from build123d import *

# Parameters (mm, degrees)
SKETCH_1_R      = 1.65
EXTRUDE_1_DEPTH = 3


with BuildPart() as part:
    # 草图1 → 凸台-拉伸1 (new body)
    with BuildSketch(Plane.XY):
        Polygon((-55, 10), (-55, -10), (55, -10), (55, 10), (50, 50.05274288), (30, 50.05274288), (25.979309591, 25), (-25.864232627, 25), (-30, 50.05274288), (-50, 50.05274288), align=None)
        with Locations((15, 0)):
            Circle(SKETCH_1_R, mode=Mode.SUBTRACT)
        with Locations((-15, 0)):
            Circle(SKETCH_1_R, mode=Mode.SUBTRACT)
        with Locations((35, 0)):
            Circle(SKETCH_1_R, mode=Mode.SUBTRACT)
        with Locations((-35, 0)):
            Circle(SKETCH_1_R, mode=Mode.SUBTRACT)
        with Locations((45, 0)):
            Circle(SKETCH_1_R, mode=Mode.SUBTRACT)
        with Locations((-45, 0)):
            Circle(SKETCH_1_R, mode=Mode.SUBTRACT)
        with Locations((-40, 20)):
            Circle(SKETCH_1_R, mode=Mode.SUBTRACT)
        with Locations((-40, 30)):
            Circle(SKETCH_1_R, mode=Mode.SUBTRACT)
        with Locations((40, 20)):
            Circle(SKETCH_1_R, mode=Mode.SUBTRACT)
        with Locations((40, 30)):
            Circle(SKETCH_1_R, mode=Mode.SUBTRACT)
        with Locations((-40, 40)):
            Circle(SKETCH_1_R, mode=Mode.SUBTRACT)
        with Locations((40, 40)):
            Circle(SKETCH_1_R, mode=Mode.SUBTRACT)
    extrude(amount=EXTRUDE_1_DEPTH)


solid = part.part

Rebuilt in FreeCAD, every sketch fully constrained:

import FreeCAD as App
import Part
import Sketcher

V = App.Vector


def add_polygon(sketch, points):
    """Adds a closed chain of lines whose ends are joined by coincident constraints."""
    first, n = sketch.GeometryCount, len(points)
    for a, b in zip(points, points[1:] + points[:1]):
        sketch.addGeometry(Part.LineSegment(App.Vector(*a, 0), App.Vector(*b, 0)), False)
    for i in range(n):
        sketch.addConstraint(Sketcher.Constraint("Coincident", first + i, 2, first + (i + 1) % n, 1))

doc = App.newDocument("Part")
body = doc.addObject("PartDesign::Body", "Body")

# Sketch on XY plane
sketch1 = body.newObject("Sketcher::SketchObject", "Sketch")
sketch1.AttachmentSupport = (doc.getObject("XY_Plane"), [""])
sketch1.MapMode = "FlatFace"
add_polygon(sketch1, [(-55, 10), (-55, -10), (55, -10), (55, 10), (50, 50.052743), (30, 50.052743), (25.97931, 25), (-25.864233, 25), (-30, 50.052743), (-50, 50.052743)])  # lines 0-9
sketch1.addGeometry(Part.Circle(V(-45, 0, 0), V(0, 0, 1), 1.65), False)  # 10
sketch1.addGeometry(Part.Circle(V(-35, 0, 0), V(0, 0, 1), 1.65), False)  # 11
sketch1.addGeometry(Part.Circle(V(-15, 0, 0), V(0, 0, 1), 1.65), False)  # 12
sketch1.addGeometry(Part.Circle(V(15, 0, 0), V(0, 0, 1), 1.65), False)  # 13
sketch1.addGeometry(Part.Circle(V(35, 0, 0), V(0, 0, 1), 1.65), False)  # 14
sketch1.addGeometry(Part.Circle(V(45, 0, 0), V(0, 0, 1), 1.65), False)  # 15
sketch1.addGeometry(Part.Circle(V(-40, 20, 0), V(0, 0, 1), 1.65), False)  # 16
sketch1.addGeometry(Part.Circle(V(-40, 30, 0), V(0, 0, 1), 1.65), False)  # 17
sketch1.addGeometry(Part.Circle(V(-40, 40, 0), V(0, 0, 1), 1.65), False)  # 18
sketch1.addGeometry(Part.Circle(V(40, 20, 0), V(0, 0, 1), 1.65), False)  # 19
sketch1.addGeometry(Part.Circle(V(40, 30, 0), V(0, 0, 1), 1.65), False)  # 20
sketch1.addGeometry(Part.Circle(V(40, 40, 0), V(0, 0, 1), 1.65), False)  # 21
sketch1.addConstraint(Sketcher.Constraint("Vertical", 0))
sketch1.addConstraint(Sketcher.Constraint("Horizontal", 1))
sketch1.addConstraint(Sketcher.Constraint("Vertical", 2))
sketch1.addConstraint(Sketcher.Constraint("Horizontal", 4))
sketch1.addConstraint(Sketcher.Constraint("Horizontal", 6))
sketch1.addConstraint(Sketcher.Constraint("Horizontal", 8))
sketch1.addConstraint(Sketcher.Constraint("Equal", 10, 11))
sketch1.addConstraint(Sketcher.Constraint("Equal", 11, 12))
sketch1.addConstraint(Sketcher.Constraint("Equal", 12, 13))
sketch1.addConstraint(Sketcher.Constraint("Equal", 13, 14))
sketch1.addConstraint(Sketcher.Constraint("Equal", 14, 15))
sketch1.addConstraint(Sketcher.Constraint("Equal", 15, 16))
sketch1.addConstraint(Sketcher.Constraint("Equal", 16, 17))
sketch1.addConstraint(Sketcher.Constraint("Equal", 17, 18))
sketch1.addConstraint(Sketcher.Constraint("Equal", 18, 19))
sketch1.addConstraint(Sketcher.Constraint("Equal", 19, 20))
sketch1.addConstraint(Sketcher.Constraint("Equal", 20, 21))
sketch1.addConstraint(Sketcher.Constraint("Symmetric", 12, 3, 13, 3, -1, 1))
sketch1.addConstraint(Sketcher.Constraint("Symmetric", 11, 3, 14, 3, -1, 1))
sketch1.addConstraint(Sketcher.Constraint("Symmetric", 10, 3, 15, 3, -1, 1))
sketch1.addConstraint(Sketcher.Constraint("Symmetric", 0, 2, 2, 2, -1, 1))
sketch1.addConstraint(Sketcher.Constraint("Symmetric", 16, 3, 19, 3, -2))
sketch1.addConstraint(Sketcher.Constraint("Symmetric", 17, 3, 20, 3, -2))
sketch1.addConstraint(Sketcher.Constraint("Symmetric", 18, 3, 21, 3, -2))
sketch1.addConstraint(Sketcher.Constraint("Symmetric", 4, 2, 7, 2, -2))
sketch1.addConstraint(Sketcher.Constraint("PointOnObject", 10, 3, -1))
sketch1.addConstraint(Sketcher.Constraint("PointOnObject", 11, 3, -1))
sketch1.addConstraint(Sketcher.Constraint("PointOnObject", 12, 3, -1))
sketch1.addConstraint(Sketcher.Constraint("Horizontal", 2, 2, 9, 2))
sketch1.addConstraint(Sketcher.Constraint("Vertical", 16, 3, 17, 3))
sketch1.addConstraint(Sketcher.Constraint("Vertical", 17, 3, 18, 3))
sketch1.addConstraint(Sketcher.Constraint("Equal", 4, 8))
sketch1.addConstraint(Sketcher.Constraint("Equal", 8, 0))
sketch1.addConstraint(Sketcher.Constraint("Diameter", 10, 3.3))
sketch1.addConstraint(Sketcher.Constraint("DistanceX", 1, 1, 1, 2, 110.0))
sketch1.addConstraint(Sketcher.Constraint("DistanceX", 4, 2, 4, 1, 20.0))
sketch1.addConstraint(Sketcher.Constraint("DistanceX", 10, 3, -1, 1, 45.0))
sketch1.addConstraint(Sketcher.Constraint("DistanceX", 11, 3, -1, 1, 35.0))
sketch1.addConstraint(Sketcher.Constraint("DistanceX", 12, 3, -1, 1, 15.0))
sketch1.addConstraint(Sketcher.Constraint("DistanceX", 16, 3, -1, 1, 40.0))
sketch1.addConstraint(Sketcher.Constraint("DistanceY", -1, 1, 16, 3, 20.0))
sketch1.addConstraint(Sketcher.Constraint("DistanceY", -1, 1, 17, 3, 30.0))
sketch1.addConstraint(Sketcher.Constraint("DistanceY", -1, 1, 18, 3, 40.0))
sketch1.addConstraint(Sketcher.Constraint("DistanceX", -1, 1, 3, 2, 50.0))
sketch1.addConstraint(Sketcher.Constraint("DistanceY", -1, 1, 5, 2, 25.0))
sketch1.addConstraint(Sketcher.Constraint("Distance", 5, 25.37333))
sketch1.addConstraint(Sketcher.Constraint("Distance", 7, 25.39182))
sketch1.addConstraint(Sketcher.Constraint("DistanceX", 6, 2, 6, 1, 51.843542))
pad1 = body.newObject("PartDesign::Pad", "Pad")
pad1.Profile = sketch1
pad1.Length = 3

doc.recompute()
